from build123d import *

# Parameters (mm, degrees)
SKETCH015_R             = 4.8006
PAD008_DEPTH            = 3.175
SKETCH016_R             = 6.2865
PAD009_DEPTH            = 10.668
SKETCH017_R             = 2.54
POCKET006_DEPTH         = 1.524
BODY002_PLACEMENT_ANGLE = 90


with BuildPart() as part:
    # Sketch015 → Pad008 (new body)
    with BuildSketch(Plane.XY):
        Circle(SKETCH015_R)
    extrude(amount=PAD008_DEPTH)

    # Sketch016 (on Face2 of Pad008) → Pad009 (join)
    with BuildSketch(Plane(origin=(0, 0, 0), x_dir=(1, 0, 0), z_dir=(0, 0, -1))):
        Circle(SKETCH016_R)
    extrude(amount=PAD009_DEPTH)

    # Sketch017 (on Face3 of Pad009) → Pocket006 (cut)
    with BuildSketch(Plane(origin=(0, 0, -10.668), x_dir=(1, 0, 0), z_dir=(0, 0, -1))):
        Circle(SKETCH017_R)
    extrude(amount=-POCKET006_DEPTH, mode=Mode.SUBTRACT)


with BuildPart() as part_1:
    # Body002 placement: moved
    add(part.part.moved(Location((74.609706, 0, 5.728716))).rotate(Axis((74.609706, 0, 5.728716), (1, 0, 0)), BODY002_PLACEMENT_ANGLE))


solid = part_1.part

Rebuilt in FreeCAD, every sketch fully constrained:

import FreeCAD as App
import Part
import Sketcher

V = App.Vector
Q = App.Units.Quantity

doc = App.newDocument("Part")
body = doc.addObject("PartDesign::Body", "Body")

sketch1 = body.newObject("Sketcher::SketchObject", "Sketch")
sketch1.AttachmentSupport = (doc.getObject("XY_Plane"), [""])
sketch1.MapMode = "FlatFace"
sketch1.addGeometry(Part.Circle(V(0, 0, 0), V(0, 0, 1), 4.8006), False)
sketch1.addConstraint(Sketcher.Constraint("Coincident", 0, 3, -1, 1))
sketch1.addConstraint(Sketcher.Constraint("Diameter", 0, Q("0.378 in")))
pad1 = body.newObject("PartDesign::Pad", "Pad")
pad1.Profile = sketch1
pad1.Length = Q("0.125 in")

sketch2 = body.newObject("Sketcher::SketchObject", "Sketch001")
sketch2.AttachmentSupport = (doc.getObject("XY_Plane"), [""])
sketch2.MapMode = "FlatFace"
sketch2.addGeometry(Part.Circle(V(0, 0, 0), V(0, 0, 1), 6.2865), False)
sketch2.addConstraint(Sketcher.Constraint("Coincident", 0, 3, -1, 1))
sketch2.addConstraint(Sketcher.Constraint("Diameter", 0, Q("0.495 in")))
pad2 = body.newObject("PartDesign::Pad", "Pad001")
pad2.Profile = sketch2
pad2.Length = Q("0.42 in")
pad2.Reversed = True

sketch3 = body.newObject("Sketcher::SketchObject", "Sketch002")
sketch3.AttachmentSupport = (doc.getObject("XY_Plane"), [""])
sketch3.MapMode = "FlatFace"
sketch3.AttachmentOffset = App.Placement(V(0, 0, -0.42 * 25.4), App.Rotation())
sketch3.addGeometry(Part.Circle(V(0, 0, 0), V(0, 0, 1), 2.54), False)
sketch3.addConstraint(Sketcher.Constraint("Coincident", 0, 3, -1, 1))
sketch3.addConstraint(Sketcher.Constraint("Diameter", 0, Q("0.2 in")))
pocket1 = body.newObject("PartDesign::Pocket", "Pocket")
pocket1.Profile = sketch3
pocket1.Length = Q("0.06 in")
pocket1.Reversed = True
body2 = doc.addObject("PartDesign::Body", "Body001")
doc.recompute()

body.Placement = App.Placement(V(74.609706, 0, 5.728716), App.Rotation(V(1, 0, 0), 90))
boolean = body2.newObject("PartDesign::Boolean", "Boolean")
boolean.Type = "Fuse"
boolean.addObjects([body])

doc.recompute()
